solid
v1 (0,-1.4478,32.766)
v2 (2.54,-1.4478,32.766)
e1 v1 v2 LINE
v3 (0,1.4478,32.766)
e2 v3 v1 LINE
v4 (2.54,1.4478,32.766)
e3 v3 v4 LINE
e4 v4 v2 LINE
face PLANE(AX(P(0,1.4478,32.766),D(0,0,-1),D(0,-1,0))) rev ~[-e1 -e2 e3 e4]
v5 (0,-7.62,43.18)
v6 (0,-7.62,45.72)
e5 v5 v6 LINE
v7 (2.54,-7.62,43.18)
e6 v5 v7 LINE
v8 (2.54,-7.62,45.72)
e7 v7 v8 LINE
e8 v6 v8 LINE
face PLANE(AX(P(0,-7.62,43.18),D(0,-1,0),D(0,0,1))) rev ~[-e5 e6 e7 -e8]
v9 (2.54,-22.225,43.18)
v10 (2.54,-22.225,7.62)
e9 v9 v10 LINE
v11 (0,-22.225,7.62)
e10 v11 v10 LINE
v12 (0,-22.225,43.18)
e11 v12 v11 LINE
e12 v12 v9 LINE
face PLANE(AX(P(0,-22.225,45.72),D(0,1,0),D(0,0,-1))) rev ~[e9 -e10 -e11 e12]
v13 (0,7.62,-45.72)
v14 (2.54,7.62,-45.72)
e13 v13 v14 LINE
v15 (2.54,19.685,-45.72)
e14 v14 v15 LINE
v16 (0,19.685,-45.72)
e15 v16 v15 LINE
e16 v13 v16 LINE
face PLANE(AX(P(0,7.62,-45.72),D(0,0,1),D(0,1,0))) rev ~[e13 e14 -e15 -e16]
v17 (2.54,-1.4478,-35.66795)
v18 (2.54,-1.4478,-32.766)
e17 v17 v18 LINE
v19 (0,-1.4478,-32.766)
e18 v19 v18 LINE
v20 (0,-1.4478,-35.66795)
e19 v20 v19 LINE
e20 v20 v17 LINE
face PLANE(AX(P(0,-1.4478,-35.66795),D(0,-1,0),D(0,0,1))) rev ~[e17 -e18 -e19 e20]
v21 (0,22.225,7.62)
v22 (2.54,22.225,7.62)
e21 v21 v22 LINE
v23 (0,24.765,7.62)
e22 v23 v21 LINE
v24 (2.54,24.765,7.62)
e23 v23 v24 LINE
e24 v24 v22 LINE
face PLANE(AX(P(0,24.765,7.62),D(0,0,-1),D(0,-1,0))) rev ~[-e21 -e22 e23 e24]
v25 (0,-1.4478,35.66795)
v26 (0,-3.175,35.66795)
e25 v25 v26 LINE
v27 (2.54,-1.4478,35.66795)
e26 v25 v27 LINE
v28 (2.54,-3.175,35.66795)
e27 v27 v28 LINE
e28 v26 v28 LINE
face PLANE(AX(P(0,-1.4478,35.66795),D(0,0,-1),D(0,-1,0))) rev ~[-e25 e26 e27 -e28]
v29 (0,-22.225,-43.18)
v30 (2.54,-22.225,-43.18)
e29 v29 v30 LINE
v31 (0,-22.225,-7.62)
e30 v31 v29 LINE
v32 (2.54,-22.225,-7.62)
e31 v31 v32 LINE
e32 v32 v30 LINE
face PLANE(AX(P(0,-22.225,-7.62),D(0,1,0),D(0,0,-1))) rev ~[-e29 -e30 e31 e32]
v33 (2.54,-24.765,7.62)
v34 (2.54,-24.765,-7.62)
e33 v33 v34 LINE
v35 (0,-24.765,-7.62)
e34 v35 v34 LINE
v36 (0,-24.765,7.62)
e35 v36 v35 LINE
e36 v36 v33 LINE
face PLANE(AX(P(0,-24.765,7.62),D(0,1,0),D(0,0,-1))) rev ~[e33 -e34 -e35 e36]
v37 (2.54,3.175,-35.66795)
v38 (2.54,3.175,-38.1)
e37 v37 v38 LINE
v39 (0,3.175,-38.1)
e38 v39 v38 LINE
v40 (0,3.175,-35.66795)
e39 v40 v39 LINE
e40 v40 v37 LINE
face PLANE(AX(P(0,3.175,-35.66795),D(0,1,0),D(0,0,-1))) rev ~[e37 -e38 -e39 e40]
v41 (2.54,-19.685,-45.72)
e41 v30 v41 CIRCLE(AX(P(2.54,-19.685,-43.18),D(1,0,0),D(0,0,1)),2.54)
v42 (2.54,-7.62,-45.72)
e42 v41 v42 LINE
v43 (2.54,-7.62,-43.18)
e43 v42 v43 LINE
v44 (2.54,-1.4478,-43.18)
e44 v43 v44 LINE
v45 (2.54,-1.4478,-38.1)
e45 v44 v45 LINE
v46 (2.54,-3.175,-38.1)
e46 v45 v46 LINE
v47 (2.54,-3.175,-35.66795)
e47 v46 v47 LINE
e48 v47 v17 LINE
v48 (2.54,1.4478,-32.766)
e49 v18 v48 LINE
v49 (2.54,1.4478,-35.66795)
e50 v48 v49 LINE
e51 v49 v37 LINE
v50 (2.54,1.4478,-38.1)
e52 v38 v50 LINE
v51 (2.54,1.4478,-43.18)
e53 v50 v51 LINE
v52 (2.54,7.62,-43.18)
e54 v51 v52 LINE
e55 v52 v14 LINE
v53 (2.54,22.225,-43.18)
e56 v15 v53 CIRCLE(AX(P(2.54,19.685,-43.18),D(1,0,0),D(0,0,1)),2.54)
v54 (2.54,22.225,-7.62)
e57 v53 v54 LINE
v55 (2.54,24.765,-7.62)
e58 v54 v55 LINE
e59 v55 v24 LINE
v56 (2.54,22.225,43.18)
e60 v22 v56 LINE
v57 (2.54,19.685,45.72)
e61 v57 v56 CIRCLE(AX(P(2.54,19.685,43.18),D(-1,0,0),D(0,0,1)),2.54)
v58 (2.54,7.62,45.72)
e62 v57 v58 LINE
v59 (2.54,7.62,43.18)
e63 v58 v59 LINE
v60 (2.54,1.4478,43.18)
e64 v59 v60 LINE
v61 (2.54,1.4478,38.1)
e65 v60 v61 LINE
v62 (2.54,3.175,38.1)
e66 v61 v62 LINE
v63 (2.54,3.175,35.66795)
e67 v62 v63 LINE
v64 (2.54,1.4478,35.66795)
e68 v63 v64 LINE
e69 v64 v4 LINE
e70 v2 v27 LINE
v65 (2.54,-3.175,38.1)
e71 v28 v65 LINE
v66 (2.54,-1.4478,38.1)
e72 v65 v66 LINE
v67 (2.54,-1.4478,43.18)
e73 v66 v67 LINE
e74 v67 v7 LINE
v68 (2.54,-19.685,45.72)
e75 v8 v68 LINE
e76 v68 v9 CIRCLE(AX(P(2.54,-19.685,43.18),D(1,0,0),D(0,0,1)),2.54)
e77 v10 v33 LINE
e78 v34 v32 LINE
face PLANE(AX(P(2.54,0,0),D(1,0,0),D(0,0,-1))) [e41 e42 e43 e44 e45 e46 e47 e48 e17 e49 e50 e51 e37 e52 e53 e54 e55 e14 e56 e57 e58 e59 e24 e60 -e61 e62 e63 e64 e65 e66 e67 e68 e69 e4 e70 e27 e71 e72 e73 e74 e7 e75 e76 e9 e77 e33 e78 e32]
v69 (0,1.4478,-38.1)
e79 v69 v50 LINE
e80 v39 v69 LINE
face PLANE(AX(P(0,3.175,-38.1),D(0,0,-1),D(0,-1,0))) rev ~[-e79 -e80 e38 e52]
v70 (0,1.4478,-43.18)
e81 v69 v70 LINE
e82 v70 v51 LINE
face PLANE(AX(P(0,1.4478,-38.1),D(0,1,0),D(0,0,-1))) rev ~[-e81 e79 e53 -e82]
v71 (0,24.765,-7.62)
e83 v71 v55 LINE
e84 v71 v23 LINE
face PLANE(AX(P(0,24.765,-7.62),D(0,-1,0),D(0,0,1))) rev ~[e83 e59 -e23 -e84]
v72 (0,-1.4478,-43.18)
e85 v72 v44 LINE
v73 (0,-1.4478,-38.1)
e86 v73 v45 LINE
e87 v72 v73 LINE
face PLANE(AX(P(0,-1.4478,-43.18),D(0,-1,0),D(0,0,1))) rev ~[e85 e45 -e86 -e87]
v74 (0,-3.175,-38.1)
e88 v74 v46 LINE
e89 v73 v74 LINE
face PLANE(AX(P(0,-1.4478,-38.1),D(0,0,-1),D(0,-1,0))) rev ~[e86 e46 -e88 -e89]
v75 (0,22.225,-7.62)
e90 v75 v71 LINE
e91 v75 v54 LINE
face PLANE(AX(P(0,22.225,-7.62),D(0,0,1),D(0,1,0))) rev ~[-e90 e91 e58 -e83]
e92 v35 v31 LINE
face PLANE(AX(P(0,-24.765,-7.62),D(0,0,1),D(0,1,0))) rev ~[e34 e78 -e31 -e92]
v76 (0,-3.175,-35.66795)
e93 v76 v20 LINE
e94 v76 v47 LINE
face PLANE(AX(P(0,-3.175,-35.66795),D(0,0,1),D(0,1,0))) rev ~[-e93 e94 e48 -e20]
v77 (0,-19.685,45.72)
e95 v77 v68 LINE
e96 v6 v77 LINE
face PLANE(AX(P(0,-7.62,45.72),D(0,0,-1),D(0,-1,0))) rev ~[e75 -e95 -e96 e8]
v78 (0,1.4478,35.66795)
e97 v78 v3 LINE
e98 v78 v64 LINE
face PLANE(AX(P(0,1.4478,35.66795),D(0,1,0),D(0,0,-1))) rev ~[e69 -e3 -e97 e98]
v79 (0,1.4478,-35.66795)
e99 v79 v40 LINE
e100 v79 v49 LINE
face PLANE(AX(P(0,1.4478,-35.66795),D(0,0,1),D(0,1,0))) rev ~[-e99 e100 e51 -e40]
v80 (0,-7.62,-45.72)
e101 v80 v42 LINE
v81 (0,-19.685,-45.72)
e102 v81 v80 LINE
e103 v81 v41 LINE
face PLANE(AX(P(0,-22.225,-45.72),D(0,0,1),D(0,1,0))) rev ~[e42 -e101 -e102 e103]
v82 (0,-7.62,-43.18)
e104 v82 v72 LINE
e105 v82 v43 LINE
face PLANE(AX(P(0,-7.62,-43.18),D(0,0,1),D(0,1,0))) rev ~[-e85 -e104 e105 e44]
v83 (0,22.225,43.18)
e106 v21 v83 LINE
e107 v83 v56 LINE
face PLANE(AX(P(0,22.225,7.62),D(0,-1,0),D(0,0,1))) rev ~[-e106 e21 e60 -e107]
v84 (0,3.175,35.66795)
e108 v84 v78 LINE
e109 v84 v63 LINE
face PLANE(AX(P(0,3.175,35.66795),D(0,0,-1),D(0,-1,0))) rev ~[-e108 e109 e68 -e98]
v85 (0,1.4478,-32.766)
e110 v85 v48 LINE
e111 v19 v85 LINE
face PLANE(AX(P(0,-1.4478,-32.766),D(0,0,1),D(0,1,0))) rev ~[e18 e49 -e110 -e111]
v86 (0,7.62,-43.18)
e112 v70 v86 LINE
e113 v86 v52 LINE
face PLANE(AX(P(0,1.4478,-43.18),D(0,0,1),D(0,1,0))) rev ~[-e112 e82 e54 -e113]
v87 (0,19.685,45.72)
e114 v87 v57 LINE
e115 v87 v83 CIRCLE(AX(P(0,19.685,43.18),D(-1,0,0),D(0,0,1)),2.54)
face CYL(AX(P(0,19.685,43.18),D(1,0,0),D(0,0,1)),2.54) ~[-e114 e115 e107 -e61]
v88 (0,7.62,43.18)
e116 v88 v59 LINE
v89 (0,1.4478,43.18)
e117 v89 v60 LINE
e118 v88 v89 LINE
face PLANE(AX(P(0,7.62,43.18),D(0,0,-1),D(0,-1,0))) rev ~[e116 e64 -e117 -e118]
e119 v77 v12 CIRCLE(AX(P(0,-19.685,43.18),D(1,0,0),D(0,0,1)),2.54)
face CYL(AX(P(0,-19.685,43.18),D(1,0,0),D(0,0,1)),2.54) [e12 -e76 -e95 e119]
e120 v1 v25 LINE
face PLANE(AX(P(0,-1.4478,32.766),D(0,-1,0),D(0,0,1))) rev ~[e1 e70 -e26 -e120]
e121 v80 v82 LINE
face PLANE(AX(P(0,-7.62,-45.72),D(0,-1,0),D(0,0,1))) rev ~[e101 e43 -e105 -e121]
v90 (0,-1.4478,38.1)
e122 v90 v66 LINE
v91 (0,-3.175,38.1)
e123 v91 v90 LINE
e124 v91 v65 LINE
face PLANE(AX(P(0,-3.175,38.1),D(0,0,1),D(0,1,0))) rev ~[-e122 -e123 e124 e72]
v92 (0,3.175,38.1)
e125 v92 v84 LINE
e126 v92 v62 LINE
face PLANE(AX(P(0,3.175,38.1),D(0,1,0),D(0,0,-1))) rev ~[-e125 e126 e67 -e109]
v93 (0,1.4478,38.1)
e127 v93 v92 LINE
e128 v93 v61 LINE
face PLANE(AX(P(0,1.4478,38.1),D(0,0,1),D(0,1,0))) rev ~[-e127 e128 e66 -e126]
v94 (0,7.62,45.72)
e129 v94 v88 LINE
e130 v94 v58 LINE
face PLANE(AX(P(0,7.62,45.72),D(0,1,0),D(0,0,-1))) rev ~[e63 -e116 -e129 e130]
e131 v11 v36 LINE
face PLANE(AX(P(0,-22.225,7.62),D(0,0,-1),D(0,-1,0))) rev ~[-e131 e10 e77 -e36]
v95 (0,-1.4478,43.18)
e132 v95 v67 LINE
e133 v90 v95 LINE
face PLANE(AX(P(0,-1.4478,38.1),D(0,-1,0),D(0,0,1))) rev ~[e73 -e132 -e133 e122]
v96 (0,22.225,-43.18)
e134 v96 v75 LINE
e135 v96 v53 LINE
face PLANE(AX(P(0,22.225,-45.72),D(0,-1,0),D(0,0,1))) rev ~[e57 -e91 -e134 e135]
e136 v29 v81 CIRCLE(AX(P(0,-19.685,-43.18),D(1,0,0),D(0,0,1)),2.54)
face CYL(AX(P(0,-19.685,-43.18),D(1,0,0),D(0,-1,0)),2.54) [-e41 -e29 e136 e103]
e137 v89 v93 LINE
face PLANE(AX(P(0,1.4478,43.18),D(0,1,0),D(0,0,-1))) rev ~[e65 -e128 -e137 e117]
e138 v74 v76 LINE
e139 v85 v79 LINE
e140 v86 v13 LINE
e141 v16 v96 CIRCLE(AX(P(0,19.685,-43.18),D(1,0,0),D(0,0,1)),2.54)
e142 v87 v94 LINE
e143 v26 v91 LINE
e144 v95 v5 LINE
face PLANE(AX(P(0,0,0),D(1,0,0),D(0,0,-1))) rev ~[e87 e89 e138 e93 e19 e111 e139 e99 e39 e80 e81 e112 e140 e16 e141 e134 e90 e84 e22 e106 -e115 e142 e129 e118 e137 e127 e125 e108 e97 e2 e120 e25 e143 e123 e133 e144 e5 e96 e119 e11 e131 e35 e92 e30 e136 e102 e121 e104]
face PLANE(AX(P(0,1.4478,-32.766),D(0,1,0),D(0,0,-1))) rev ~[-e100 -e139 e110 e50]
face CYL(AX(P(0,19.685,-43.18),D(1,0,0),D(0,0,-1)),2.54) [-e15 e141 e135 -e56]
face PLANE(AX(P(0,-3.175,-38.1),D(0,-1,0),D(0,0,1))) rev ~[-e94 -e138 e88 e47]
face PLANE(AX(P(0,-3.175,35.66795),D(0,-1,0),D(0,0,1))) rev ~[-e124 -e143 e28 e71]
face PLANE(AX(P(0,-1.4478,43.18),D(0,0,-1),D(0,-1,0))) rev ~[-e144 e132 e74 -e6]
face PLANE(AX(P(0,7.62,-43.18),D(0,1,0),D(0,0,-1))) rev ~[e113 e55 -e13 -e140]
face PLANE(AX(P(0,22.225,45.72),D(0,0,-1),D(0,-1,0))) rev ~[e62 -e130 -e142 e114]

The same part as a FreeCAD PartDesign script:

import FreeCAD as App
import Part
import Sketcher
Q = App.Units.Quantity


def edges_at(feature, points):
    """Names of the edges that pass closest to the given points."""
    edges = feature.Shape.Edges
    near = lambda p: min(range(len(edges)), key=lambda i: edges[i].distToShape(Part.Vertex(*p))[0])
    return sorted({f"Edge{near(p) + 1}" for p in points})

doc = App.newDocument("Part")
body = doc.addObject("PartDesign::Body", "Body")

# Sketch on YZ plane
sketch1 = body.newObject("Sketcher::SketchObject", "Sketch")
sketch1.AttachmentSupport = (doc.getObject("YZ_Plane"), [""])
sketch1.MapMode = "FlatFace"
sketch1.addGeometry(Part.LineSegment(App.Vector(22.2, 45.7, 0), App.Vector(7.6, 45.7, 0)), False)
sketch1.addGeometry(Part.LineSegment(App.Vector(7.6, 45.7, 0), App.Vector(7.6, 43.2, 0)), False)
sketch1.addGeometry(Part.LineSegment(App.Vector(7.6, 43.2, 0), App.Vector(1.4, 43.2, 0)), False)
sketch1.addGeometry(Part.LineSegment(App.Vector(1.4, 43.2, 0), App.Vector(1.4, 38.1, 0)), False)
sketch1.addGeometry(Part.LineSegment(App.Vector(1.4, 38.1, 0), App.Vector(3.2, 38.1, 0)), False)
sketch1.addGeometry(Part.LineSegment(App.Vector(3.2, 38.1, 0), App.Vector(3.2, 35.7, 0)), False)
sketch1.addGeometry(Part.LineSegment(App.Vector(3.2, 35.7, 0), App.Vector(1.4, 35.7, 0)), False)
sketch1.addGeometry(Part.LineSegment(App.Vector(1.4, 35.7, 0), App.Vector(1.4, 32.8, 0)), False)
sketch1.addGeometry(Part.LineSegment(App.Vector(1.4, 32.8, 0), App.Vector(-1.4, 32.8, 0)), False)
sketch1.addGeometry(Part.LineSegment(App.Vector(-1.4, 32.8, 0), App.Vector(-1.4, 35.7, 0)), False)
sketch1.addGeometry(Part.LineSegment(App.Vector(-1.4, 35.7, 0), App.Vector(-3.2, 35.7, 0)), False)
sketch1.addGeometry(Part.LineSegment(App.Vector(-3.2, 35.7, 0), App.Vector(-3.2, 38.1, 0)), False)
sketch1.addGeometry(Part.LineSegment(App.Vector(-3.2, 38.1, 0), App.Vector(-1.4, 38.1, 0)), False)
sketch1.addGeometry(Part.LineSegment(App.Vector(-1.4, 38.1, 0), App.Vector(-1.4, 43.2, 0)), False)
sketch1.addGeometry(Part.LineSegment(App.Vector(-1.4, 43.2, 0), App.Vector(-7.6, 43.2, 0)), False)
sketch1.addGeometry(Part.LineSegment(App.Vector(-7.6, 43.2, 0), App.Vector(-7.6, 45.7, 0)), False)
sketch1.addGeometry(Part.LineSegment(App.Vector(-7.6, 45.7, 0), App.Vector(-22.2, 45.7, 0)), False)
sketch1.addGeometry(Part.LineSegment(App.Vector(-22.2, 45.7, 0), App.Vector(-22.2, 7.6, 0)), False)
sketch1.addGeometry(Part.LineSegment(App.Vector(-22.2, 7.6, 0), App.Vector(-24.8, 7.6, 0)), False)
sketch1.addGeometry(Part.LineSegment(App.Vector(-24.8, 7.6, 0), App.Vector(-24.8, -7.6, 0)), False)
sketch1.addGeometry(Part.LineSegment(App.Vector(-24.8, -7.6, 0), App.Vector(-22.2, -7.6, 0)), False)
sketch1.addGeometry(Part.LineSegment(App.Vector(-22.2, -7.6, 0), App.Vector(-22.2, -45.7, 0)), False)
sketch1.addGeometry(Part.LineSegment(App.Vector(-22.2, -45.7, 0), App.Vector(-7.6, -45.7, 0)), False)
sketch1.addGeometry(Part.LineSegment(App.Vector(-7.6, -45.7, 0), App.Vector(-7.6, -43.2, 0)), False)
sketch1.addGeometry(Part.LineSegment(App.Vector(-7.6, -43.2, 0), App.Vector(-1.4, -43.2, 0)), False)
sketch1.addGeometry(Part.LineSegment(App.Vector(-1.4, -43.2, 0), App.Vector(-1.4, -38.1, 0)), False)
sketch1.addGeometry(Part.LineSegment(App.Vector(-1.4, -38.1, 0), App.Vector(-3.2, -38.1, 0)), False)
sketch1.addGeometry(Part.LineSegment(App.Vector(-3.2, -38.1, 0), App.Vector(-3.2, -35.7, 0)), False)
sketch1.addGeometry(Part.LineSegment(App.Vector(-3.2, -35.7, 0), App.Vector(-1.4, -35.7, 0)), False)
sketch1.addGeometry(Part.LineSegment(App.Vector(-1.4, -35.7, 0), App.Vector(-1.4, -32.8, 0)), False)
sketch1.addGeometry(Part.LineSegment(App.Vector(-1.4, -32.8, 0), App.Vector(1.4, -32.8, 0)), False)
sketch1.addGeometry(Part.LineSegment(App.Vector(1.4, -32.8, 0), App.Vector(1.4, -35.7, 0)), False)
sketch1.addGeometry(Part.LineSegment(App.Vector(1.4, -35.7, 0), App.Vector(3.2, -35.7, 0)), False)
sketch1.addGeometry(Part.LineSegment(App.Vector(3.2, -35.7, 0), App.Vector(3.2, -38.1, 0)), False)
sketch1.addGeometry(Part.LineSegment(App.Vector(3.2, -38.1, 0), App.Vector(1.4, -38.1, 0)), False)
sketch1.addGeometry(Part.LineSegment(App.Vector(1.4, -38.1, 0), App.Vector(1.4, -43.2, 0)), False)
sketch1.addGeometry(Part.LineSegment(App.Vector(1.4, -43.2, 0), App.Vector(7.6, -43.2, 0)), False)
sketch1.addGeometry(Part.LineSegment(App.Vector(7.6, -43.2, 0), App.Vector(7.6, -45.7, 0)), False)
sketch1.addGeometry(Part.LineSegment(App.Vector(7.6, -45.7, 0), App.Vector(22.2, -45.7, 0)), False)
sketch1.addGeometry(Part.LineSegment(App.Vector(22.2, -45.7, 0), App.Vector(22.2, -7.6, 0)), False)
sketch1.addGeometry(Part.LineSegment(App.Vector(22.2, -7.6, 0), App.Vector(24.8, -7.6, 0)), False)
sketch1.addGeometry(Part.LineSegment(App.Vector(24.8, -7.6, 0), App.Vector(24.8, 7.6, 0)), False)
sketch1.addGeometry(Part.LineSegment(App.Vector(24.8, 7.6, 0), App.Vector(22.2, 7.6, 0)), False)
sketch1.addGeometry(Part.LineSegment(App.Vector(22.2, 7.6, 0), App.Vector(22.2, 45.7, 0)), False)
sketch1.addConstraint(Sketcher.Constraint("Coincident", 0, 2, 1, 1))
sketch1.addConstraint(Sketcher.Constraint("Coincident", 1, 2, 2, 1))
sketch1.addConstraint(Sketcher.Constraint("Coincident", 2, 2, 3, 1))
sketch1.addConstraint(Sketcher.Constraint("Coincident", 3, 2, 4, 1))
sketch1.addConstraint(Sketcher.Constraint("Coincident", 4, 2, 5, 1))
sketch1.addConstraint(Sketcher.Constraint("Coincident", 5, 2, 6, 1))
sketch1.addConstraint(Sketcher.Constraint("Coincident", 6, 2, 7, 1))
sketch1.addConstraint(Sketcher.Constraint("Coincident", 7, 2, 8, 1))
sketch1.addConstraint(Sketcher.Constraint("Coincident", 8, 2, 9, 1))
sketch1.addConstraint(Sketcher.Constraint("Coincident", 9, 2, 10, 1))
sketch1.addConstraint(Sketcher.Constraint("Coincident", 10, 2, 11, 1))
sketch1.addConstraint(Sketcher.Constraint("Coincident", 11, 2, 12, 1))
sketch1.addConstraint(Sketcher.Constraint("Coincident", 12, 2, 13, 1))
sketch1.addConstraint(Sketcher.Constraint("Coincident", 13, 2, 14, 1))
sketch1.addConstraint(Sketcher.Constraint("Coincident", 14, 2, 15, 1))
sketch1.addConstraint(Sketcher.Constraint("Coincident", 15, 2, 16, 1))
sketch1.addConstraint(Sketcher.Constraint("Coincident", 16, 2, 17, 1))
sketch1.addConstraint(Sketcher.Constraint("Coincident", 17, 2, 18, 1))
sketch1.addConstraint(Sketcher.Constraint("Coincident", 18, 2, 19, 1))
sketch1.addConstraint(Sketcher.Constraint("Coincident", 19, 2, 20, 1))
sketch1.addConstraint(Sketcher.Constraint("Coincident", 20, 2, 21, 1))
sketch1.addConstraint(Sketcher.Constraint("Coincident", 21, 2, 22, 1))
sketch1.addConstraint(Sketcher.Constraint("Coincident", 22, 2, 23, 1))
sketch1.addConstraint(Sketcher.Constraint("Coincident", 23, 2, 24, 1))
sketch1.addConstraint(Sketcher.Constraint("Coincident", 24, 2, 25, 1))
sketch1.addConstraint(Sketcher.Constraint("Coincident", 25, 2, 26, 1))
sketch1.addConstraint(Sketcher.Constraint("Coincident", 26, 2, 27, 1))
sketch1.addConstraint(Sketcher.Constraint("Coincident", 27, 2, 28, 1))
sketch1.addConstraint(Sketcher.Constraint("Coincident", 28, 2, 29, 1))
sketch1.addConstraint(Sketcher.Constraint("Coincident", 29, 2, 30, 1))
sketch1.addConstraint(Sketcher.Constraint("Coincident", 30, 2, 31, 1))
sketch1.addConstraint(Sketcher.Constraint("Coincident", 31, 2, 32, 1))
sketch1.addConstraint(Sketcher.Constraint("Coincident", 32, 2, 33, 1))
sketch1.addConstraint(Sketcher.Constraint("Coincident", 33, 2, 34, 1))
sketch1.addConstraint(Sketcher.Constraint("Coincident", 34, 2, 35, 1))
sketch1.addConstraint(Sketcher.Constraint("Coincident", 35, 2, 36, 1))
sketch1.addConstraint(Sketcher.Constraint("Coincident", 36, 2, 37, 1))
sketch1.addConstraint(Sketcher.Constraint("Coincident", 37, 2, 38, 1))
sketch1.addConstraint(Sketcher.Constraint("Coincident", 38, 2, 39, 1))
sketch1.addConstraint(Sketcher.Constraint("Coincident", 39, 2, 40, 1))
sketch1.addConstraint(Sketcher.Constraint("Coincident", 40, 2, 41, 1))
sketch1.addConstraint(Sketcher.Constraint("Coincident", 41, 2, 42, 1))
sketch1.addConstraint(Sketcher.Constraint("Coincident", 42, 2, 43, 1))
sketch1.addConstraint(Sketcher.Constraint("Coincident", 43, 2, 0, 1))
sketch1.addConstraint(Sketcher.Constraint("Horizontal", 0))
sketch1.addConstraint(Sketcher.Constraint("Vertical", 1))
sketch1.addConstraint(Sketcher.Constraint("Horizontal", 2))
sketch1.addConstraint(Sketcher.Constraint("Vertical", 3))
sketch1.addConstraint(Sketcher.Constraint("Horizontal", 4))
sketch1.addConstraint(Sketcher.Constraint("Vertical", 5))
sketch1.addConstraint(Sketcher.Constraint("Horizontal", 6))
sketch1.addConstraint(Sketcher.Constraint("Vertical", 7))
sketch1.addConstraint(Sketcher.Constraint("Horizontal", 8))
sketch1.addConstraint(Sketcher.Constraint("Vertical", 9))
sketch1.addConstraint(Sketcher.Constraint("Horizontal", 10))
sketch1.addConstraint(Sketcher.Constraint("Vertical", 11))
sketch1.addConstraint(Sketcher.Constraint("Horizontal", 12))
sketch1.addConstraint(Sketcher.Constraint("Vertical", 13))
sketch1.addConstraint(Sketcher.Constraint("Horizontal", 14))
sketch1.addConstraint(Sketcher.Constraint("Vertical", 15))
sketch1.addConstraint(Sketcher.Constraint("Horizontal", 16))
sketch1.addConstraint(Sketcher.Constraint("Vertical", 17))
sketch1.addConstraint(Sketcher.Constraint("Horizontal", 18))
sketch1.addConstraint(Sketcher.Constraint("Vertical", 19))
sketch1.addConstraint(Sketcher.Constraint("Horizontal", 20))
sketch1.addConstraint(Sketcher.Constraint("Vertical", 21))
sketch1.addConstraint(Sketcher.Constraint("Horizontal", 22))
sketch1.addConstraint(Sketcher.Constraint("Vertical", 23))
sketch1.addConstraint(Sketcher.Constraint("Horizontal", 24))
sketch1.addConstraint(Sketcher.Constraint("Vertical", 25))
sketch1.addConstraint(Sketcher.Constraint("Horizontal", 26))
sketch1.addConstraint(Sketcher.Constraint("Vertical", 27))
sketch1.addConstraint(Sketcher.Constraint("Horizontal", 28))
sketch1.addConstraint(Sketcher.Constraint("Vertical", 29))
sketch1.addConstraint(Sketcher.Constraint("Horizontal", 30))
sketch1.addConstraint(Sketcher.Constraint("Vertical", 31))
sketch1.addConstraint(Sketcher.Constraint("Horizontal", 32))
sketch1.addConstraint(Sketcher.Constraint("Vertical", 33))
sketch1.addConstraint(Sketcher.Constraint("Horizontal", 34))
sketch1.addConstraint(Sketcher.Constraint("Vertical", 35))
sketch1.addConstraint(Sketcher.Constraint("Horizontal", 36))
sketch1.addConstraint(Sketcher.Constraint("Vertical", 37))
sketch1.addConstraint(Sketcher.Constraint("Horizontal", 38))
sketch1.addConstraint(Sketcher.Constraint("Vertical", 39))
sketch1.addConstraint(Sketcher.Constraint("Horizontal", 40))
sketch1.addConstraint(Sketcher.Constraint("Vertical", 41))
sketch1.addConstraint(Sketcher.Constraint("Horizontal", 42))
sketch1.addConstraint(Sketcher.Constraint("Vertical", 43))
sketch1.addConstraint(Sketcher.Constraint("Symmetric", 0, 2, 22, 2, -1, 1))
sketch1.addConstraint(Sketcher.Constraint("Symmetric", 2, 2, 24, 2, -1, 1))
sketch1.addConstraint(Sketcher.Constraint("Symmetric", 4, 2, 26, 2, -1, 1))
sketch1.addConstraint(Sketcher.Constraint("Symmetric", 6, 2, 28, 2, -1, 1))
sketch1.addConstraint(Sketcher.Constraint("Symmetric", 8, 2, 30, 2, -1, 1))
sketch1.addConstraint(Sketcher.Constraint("Symmetric", 10, 2, 32, 2, -1, 1))
sketch1.addConstraint(Sketcher.Constraint("Symmetric", 12, 2, 34, 2, -1, 1))
sketch1.addConstraint(Sketcher.Constraint("Symmetric", 14, 2, 36, 2, -1, 1))
sketch1.addConstraint(Sketcher.Constraint("Symmetric", 16, 2, 38, 2, -1, 1))
sketch1.addConstraint(Sketcher.Constraint("Symmetric", 18, 2, 40, 2, -1, 1))
sketch1.addConstraint(Sketcher.Constraint("Symmetric", 20, 2, 42, 2, -1, 1))
sketch1.addConstraint(Sketcher.Constraint("Symmetric", 6, 2, 9, 2, -2))
sketch1.addConstraint(Sketcher.Constraint("Symmetric", 4, 2, 11, 2, -2))
sketch1.addConstraint(Sketcher.Constraint("Symmetric", 2, 2, 13, 2, -2))
sketch1.addConstraint(Sketcher.Constraint("Symmetric", 0, 2, 15, 2, -2))
sketch1.addConstraint(Sketcher.Constraint("Symmetric", 20, 2, 39, 2, -2))
sketch1.addConstraint(Sketcher.Constraint("Vertical", 3, 2, 6, 2))
sketch1.addConstraint(Sketcher.Constraint("Equal", 42, 1))
sketch1.addConstraint(Sketcher.Constraint("DistanceX", 18, 2, 18, 1, Q("0.1 in")))
sketch1.addConstraint(Sketcher.Constraint("DistanceY", 3, 2, 3, 1, Q("0.2 in")))
sketch1.addConstraint(Sketcher.Constraint("DistanceY", 17, 2, 17, 1, Q("1.5 in")))
sketch1.addConstraint(Sketcher.Constraint("DistanceY", 19, 2, 19, 1, Q("0.6 in")))
sketch1.addConstraint(Sketcher.Constraint("DistanceX", -1, 1, 0, 2, Q("0.3 in")))
sketch1.addConstraint(Sketcher.Constraint("DistanceX", 0, 2, 0, 1, Q("0.575 in")))
sketch1.addConstraint(Sketcher.Constraint("DistanceX", 2, 2, 2, 1, Q("0.243 in")))
sketch1.addConstraint(Sketcher.Constraint("DistanceX", 4, 1, 4, 2, Q("0.068 in")))
sketch1.addConstraint(Sketcher.Constraint("DistanceY", -1, 1, 7, 2, Q("1.29 in")))
sketch1.addConstraint(Sketcher.Constraint("DistanceY", 5, 2, 5, 1, Q("2.43205 mm")))
pad1 = body.newObject("PartDesign::Pad", "Pad")
pad1.Profile = sketch1
pad1.Length = Q("0.1 in")
doc.recompute()

fillet = body.newObject("PartDesign::Fillet", "Fillet")
fillet.Base = (pad1, edges_at(pad1, [
    (1.27, -22.225, -45.72),
    (1.27, -22.225, 45.72),
    (1.27, 22.225, 45.72),
    (1.27, 22.225, -45.72),
]))
fillet.Radius = Q("0.1 in")

doc.recompute()
